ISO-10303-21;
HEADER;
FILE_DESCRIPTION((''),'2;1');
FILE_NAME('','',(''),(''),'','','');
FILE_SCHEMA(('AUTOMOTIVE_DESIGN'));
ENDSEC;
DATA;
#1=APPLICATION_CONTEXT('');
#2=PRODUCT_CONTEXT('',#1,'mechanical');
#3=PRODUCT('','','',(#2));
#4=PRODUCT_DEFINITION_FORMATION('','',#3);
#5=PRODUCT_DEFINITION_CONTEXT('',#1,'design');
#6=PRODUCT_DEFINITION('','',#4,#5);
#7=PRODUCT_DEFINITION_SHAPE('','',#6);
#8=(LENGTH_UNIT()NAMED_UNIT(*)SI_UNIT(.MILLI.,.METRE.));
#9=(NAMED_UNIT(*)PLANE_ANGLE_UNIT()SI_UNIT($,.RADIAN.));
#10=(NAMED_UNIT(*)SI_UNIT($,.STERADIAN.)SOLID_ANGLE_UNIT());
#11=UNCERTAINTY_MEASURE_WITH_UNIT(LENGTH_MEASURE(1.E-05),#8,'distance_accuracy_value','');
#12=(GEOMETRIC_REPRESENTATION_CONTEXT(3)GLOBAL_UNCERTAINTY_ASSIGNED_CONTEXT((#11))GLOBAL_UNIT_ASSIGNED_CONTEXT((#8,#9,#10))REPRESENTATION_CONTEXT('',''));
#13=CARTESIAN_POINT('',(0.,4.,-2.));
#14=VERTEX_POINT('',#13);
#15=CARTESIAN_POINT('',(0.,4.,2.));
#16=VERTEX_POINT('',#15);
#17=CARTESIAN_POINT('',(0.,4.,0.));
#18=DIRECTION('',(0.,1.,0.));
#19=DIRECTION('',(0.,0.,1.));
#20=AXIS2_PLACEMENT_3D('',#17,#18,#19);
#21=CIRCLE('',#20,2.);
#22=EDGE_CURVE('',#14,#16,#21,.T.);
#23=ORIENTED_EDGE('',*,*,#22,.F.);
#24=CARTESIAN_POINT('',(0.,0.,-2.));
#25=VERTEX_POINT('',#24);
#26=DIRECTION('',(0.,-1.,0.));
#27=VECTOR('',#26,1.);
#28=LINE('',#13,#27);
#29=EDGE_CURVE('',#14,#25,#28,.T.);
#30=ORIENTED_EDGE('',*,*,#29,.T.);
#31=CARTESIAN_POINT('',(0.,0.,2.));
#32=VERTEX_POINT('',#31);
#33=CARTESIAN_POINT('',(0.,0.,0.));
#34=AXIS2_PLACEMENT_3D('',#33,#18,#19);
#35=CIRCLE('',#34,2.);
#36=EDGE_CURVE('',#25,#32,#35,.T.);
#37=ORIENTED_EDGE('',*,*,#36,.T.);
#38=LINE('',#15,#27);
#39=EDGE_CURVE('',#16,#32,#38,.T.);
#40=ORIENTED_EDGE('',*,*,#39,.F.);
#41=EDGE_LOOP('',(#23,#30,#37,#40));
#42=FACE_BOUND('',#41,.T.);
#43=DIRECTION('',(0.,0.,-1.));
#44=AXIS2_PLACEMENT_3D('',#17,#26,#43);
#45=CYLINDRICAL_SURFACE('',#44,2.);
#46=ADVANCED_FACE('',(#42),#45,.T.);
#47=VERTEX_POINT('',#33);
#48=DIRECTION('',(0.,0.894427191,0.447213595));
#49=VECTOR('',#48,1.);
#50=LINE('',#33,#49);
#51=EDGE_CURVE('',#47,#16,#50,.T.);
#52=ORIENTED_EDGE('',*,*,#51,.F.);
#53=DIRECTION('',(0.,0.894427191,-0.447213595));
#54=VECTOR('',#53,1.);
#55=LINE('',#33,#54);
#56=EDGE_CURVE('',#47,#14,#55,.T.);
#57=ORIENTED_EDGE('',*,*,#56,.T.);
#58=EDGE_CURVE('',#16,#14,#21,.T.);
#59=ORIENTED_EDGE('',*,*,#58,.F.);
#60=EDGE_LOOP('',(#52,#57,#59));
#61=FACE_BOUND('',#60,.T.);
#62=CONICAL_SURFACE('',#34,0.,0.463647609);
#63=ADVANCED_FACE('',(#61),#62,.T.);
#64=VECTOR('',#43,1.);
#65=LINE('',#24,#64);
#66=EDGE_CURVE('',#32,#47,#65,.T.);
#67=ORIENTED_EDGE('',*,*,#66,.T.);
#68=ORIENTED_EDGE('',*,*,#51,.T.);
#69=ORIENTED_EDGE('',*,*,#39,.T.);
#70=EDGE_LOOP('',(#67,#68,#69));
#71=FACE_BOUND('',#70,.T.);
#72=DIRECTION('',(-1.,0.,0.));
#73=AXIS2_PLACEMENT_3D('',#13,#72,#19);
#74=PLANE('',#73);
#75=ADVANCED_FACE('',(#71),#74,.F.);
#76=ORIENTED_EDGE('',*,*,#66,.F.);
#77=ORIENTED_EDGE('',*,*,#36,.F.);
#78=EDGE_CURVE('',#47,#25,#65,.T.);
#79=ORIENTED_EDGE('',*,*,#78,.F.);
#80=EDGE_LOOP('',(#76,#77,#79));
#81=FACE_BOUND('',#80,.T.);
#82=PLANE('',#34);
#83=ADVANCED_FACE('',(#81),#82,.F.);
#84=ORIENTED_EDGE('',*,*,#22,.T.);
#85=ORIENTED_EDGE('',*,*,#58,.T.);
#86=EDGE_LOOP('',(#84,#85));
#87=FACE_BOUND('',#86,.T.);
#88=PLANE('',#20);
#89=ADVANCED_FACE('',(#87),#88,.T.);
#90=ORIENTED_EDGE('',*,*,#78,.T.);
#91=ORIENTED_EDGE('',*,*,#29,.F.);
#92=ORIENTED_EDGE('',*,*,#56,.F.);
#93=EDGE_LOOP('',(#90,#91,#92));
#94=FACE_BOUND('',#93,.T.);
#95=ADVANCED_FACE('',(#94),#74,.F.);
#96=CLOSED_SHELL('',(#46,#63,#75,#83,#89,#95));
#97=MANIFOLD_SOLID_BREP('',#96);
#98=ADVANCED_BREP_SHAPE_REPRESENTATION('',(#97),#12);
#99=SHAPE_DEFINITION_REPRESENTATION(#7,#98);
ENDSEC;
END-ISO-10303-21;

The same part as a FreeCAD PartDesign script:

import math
import FreeCAD as App
import Part
import Sketcher

V = App.Vector
Q = App.Units.Quantity

doc = App.newDocument("Part")
body = doc.addObject("PartDesign::Body", "Body")

# Sketch on XZ plane
sketch1 = body.newObject("Sketcher::SketchObject", "Sketch")
sketch1.AttachmentSupport = (doc.getObject("XZ_Plane"), [""])
sketch1.MapMode = "FlatFace"
sketch1.addGeometry([
    Part.LineSegment(V(0, 2, 0), V(0, -2, 0)),
    Part.ArcOfCircle(Part.Circle(V(0, 0, 0), V(0, 0, 1), 2), math.radians(90), math.radians(270)),
], False)
sketch1.addConstraint([
    Sketcher.Constraint("Coincident", 0, 1, 1, 1),
    Sketcher.Constraint("Coincident", 1, 2, 0, 2),
    Sketcher.Constraint("Vertical", 0),
    Sketcher.Constraint("Coincident", 1, 3, -1, 1),
    Sketcher.Constraint("PointOnObject", 0, 1, -2),
    Sketcher.Constraint("Radius", 1, Q("2 mm")),
])
pad1 = body.newObject("PartDesign::Pad", "Pad")
pad1.Profile = sketch1
pad1.Length = 4
pad1.Reversed = True

# Sketch on YZ plane
sketch2 = body.newObject("Sketcher::SketchObject", "Sketch001")
sketch2.AttachmentSupport = (doc.getObject("YZ_Plane"), [""])
sketch2.MapMode = "FlatFace"
sketch2.addGeometry([
    Part.LineSegment(V(0, 0, 0), V(4, -2, 0)),
    Part.LineSegment(V(4, -2, 0), V(4, 0, 0)),
    Part.LineSegment(V(4, 0, 0), V(0, 0, 0)),
], False)
sketch2.addConstraint([
    Sketcher.Constraint("Coincident", 0, 2, 1, 1),
    Sketcher.Constraint("Coincident", 1, 2, 2, 1),
    Sketcher.Constraint("Coincident", 2, 2, 0, 1),
    Sketcher.Constraint("Vertical", 1),
    Sketcher.Constraint("Horizontal", 2),
    Sketcher.Constraint("Coincident", 2, 2, -1, 1),
    Sketcher.Constraint("DistanceX", 2, 2, 2, 1, Q("4 mm")),
    Sketcher.Constraint("DistanceY", 1, 1, 1, 2, Q("2 mm")),
])
revolution = body.newObject("PartDesign::Revolution", "Revolution")
revolution.Profile = sketch2
revolution.ReferenceAxis = (sketch2, ["H_Axis"])
revolution.Angle = 180
revolution.Reversed = True

doc.recompute()
